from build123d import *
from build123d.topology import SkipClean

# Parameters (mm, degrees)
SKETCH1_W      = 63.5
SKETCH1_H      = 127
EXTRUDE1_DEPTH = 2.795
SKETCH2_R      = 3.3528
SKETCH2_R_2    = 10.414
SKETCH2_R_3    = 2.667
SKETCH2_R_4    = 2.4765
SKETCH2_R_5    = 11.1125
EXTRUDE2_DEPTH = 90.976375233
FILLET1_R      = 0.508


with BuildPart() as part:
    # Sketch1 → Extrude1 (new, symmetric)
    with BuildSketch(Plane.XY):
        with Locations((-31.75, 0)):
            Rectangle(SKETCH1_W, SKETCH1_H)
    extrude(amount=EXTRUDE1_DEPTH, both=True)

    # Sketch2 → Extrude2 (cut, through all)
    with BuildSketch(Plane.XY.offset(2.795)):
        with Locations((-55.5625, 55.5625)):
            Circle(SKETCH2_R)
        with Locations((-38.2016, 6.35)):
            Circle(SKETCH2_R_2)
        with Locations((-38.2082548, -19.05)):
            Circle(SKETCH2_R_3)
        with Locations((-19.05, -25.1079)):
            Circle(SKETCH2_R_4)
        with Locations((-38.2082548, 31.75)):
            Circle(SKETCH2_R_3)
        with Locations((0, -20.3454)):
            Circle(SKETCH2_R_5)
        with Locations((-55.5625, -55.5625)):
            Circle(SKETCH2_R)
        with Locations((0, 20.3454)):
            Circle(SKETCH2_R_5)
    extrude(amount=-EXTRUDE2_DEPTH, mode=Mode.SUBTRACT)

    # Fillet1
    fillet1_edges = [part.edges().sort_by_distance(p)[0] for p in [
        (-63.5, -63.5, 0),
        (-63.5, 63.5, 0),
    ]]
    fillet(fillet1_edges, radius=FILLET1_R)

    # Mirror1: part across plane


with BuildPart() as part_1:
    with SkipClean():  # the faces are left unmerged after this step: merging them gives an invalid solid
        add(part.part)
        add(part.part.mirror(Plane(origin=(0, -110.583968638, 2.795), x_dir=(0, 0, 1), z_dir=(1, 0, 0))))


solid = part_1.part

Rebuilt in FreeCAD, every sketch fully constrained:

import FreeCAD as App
import Part
import Sketcher

V = App.Vector
Q = App.Units.Quantity


def edges_at(feature, points):
    """Names of the edges that pass closest to the given points."""
    edges = feature.Shape.Edges
    near = lambda p: min(range(len(edges)), key=lambda i: edges[i].distToShape(Part.Vertex(*p))[0])
    return sorted({f"Edge{near(p) + 1}" for p in points})

doc = App.newDocument("Part")
body = doc.addObject("PartDesign::Body", "Body")

sketch1 = body.newObject("Sketcher::SketchObject", "Sketch")
sketch1.AttachmentSupport = (doc.getObject("XY_Plane"), [""])
sketch1.MapMode = "FlatFace"
sketch1.addGeometry(Part.LineSegment(V(-63.5, 63.5, 0), V(-63.5, -63.5, 0)), False)
sketch1.addGeometry(Part.LineSegment(V(-63.5, -63.5, 0), V(0, -63.5, 0)), False)
sketch1.addGeometry(Part.LineSegment(V(0, -63.5, 0), V(0, 63.5, 0)), False)
sketch1.addGeometry(Part.LineSegment(V(0, 63.5, 0), V(-63.5, 63.5, 0)), False)
sketch1.addConstraint(Sketcher.Constraint("Coincident", 0, 2, 1, 1))
sketch1.addConstraint(Sketcher.Constraint("Coincident", 1, 2, 2, 1))
sketch1.addConstraint(Sketcher.Constraint("Coincident", 2, 2, 3, 1))
sketch1.addConstraint(Sketcher.Constraint("Coincident", 3, 2, 0, 1))
sketch1.addConstraint(Sketcher.Constraint("Vertical", 0))
sketch1.addConstraint(Sketcher.Constraint("Horizontal", 1))
sketch1.addConstraint(Sketcher.Constraint("Vertical", 2))
sketch1.addConstraint(Sketcher.Constraint("Horizontal", 3))
sketch1.addConstraint(Sketcher.Constraint("Symmetric", 1, 2, 2, 2, -1, 1))
sketch1.addConstraint(Sketcher.Constraint("DistanceY", 0, 2, 0, 1, Q("5 in")))
sketch1.addConstraint(Sketcher.Constraint("DistanceX", 1, 1, 1, 2, Q("2.5 in")))
pad1 = body.newObject("PartDesign::Pad", "Pad")
pad1.Profile = sketch1
pad1.Length = 5.59
pad1.Midplane = True

sketch2 = body.newObject("Sketcher::SketchObject", "Sketch001")
sketch2.AttachmentSupport = (doc.getObject("XY_Plane"), [""])
sketch2.MapMode = "FlatFace"
sketch2.AttachmentOffset = App.Placement(V(0, 0, 2.795), App.Rotation())
sketch2.addGeometry(Part.Circle(V(-55.5625, 55.5625, 0), V(0, 0, 1), 3.3528), False)
sketch2.addGeometry(Part.Circle(V(-38.2016, 6.35, 0), V(0, 0, 1), 10.414), False)
sketch2.addGeometry(Part.Circle(V(-38.208255, -19.05, 0), V(0, 0, 1), 2.667), False)
sketch2.addGeometry(Part.Circle(V(-19.05, -25.1079, 0), V(0, 0, 1), 2.4765), False)
sketch2.addGeometry(Part.Circle(V(-38.208255, 31.75, 0), V(0, 0, 1), 2.667), False)
sketch2.addGeometry(Part.Circle(V(0, -20.3454, 0), V(0, 0, 1), 11.1125), False)
sketch2.addGeometry(Part.Circle(V(-55.5625, -55.5625, 0), V(0, 0, 1), 3.3528), False)
sketch2.addGeometry(Part.Circle(V(0, 20.3454, 0), V(0, 0, 1), 11.1125), False)
sketch2.addConstraint(Sketcher.Constraint("Equal", 2, 4))
sketch2.addConstraint(Sketcher.Constraint("Equal", 0, 6))
sketch2.addConstraint(Sketcher.Constraint("Equal", 5, 7))
sketch2.addConstraint(Sketcher.Constraint("Symmetric", 5, 3, 7, 3, -1, 1))
sketch2.addConstraint(Sketcher.Constraint("Symmetric", 0, 3, 6, 3, -1))
sketch2.addConstraint(Sketcher.Constraint("PointOnObject", 5, 3, -2))
sketch2.addConstraint(Sketcher.Constraint("Vertical", 2, 3, 4, 3))
sketch2.addConstraint(Sketcher.Constraint("Diameter", 1, Q("0.82 in")))
sketch2.addConstraint(Sketcher.Constraint("Diameter", 2, Q("0.21 in")))
sketch2.addConstraint(Sketcher.Constraint("Diameter", 0, Q("0.264 in")))
sketch2.addConstraint(Sketcher.Constraint("Diameter", 3, Q("0.195 in")))
sketch2.addConstraint(Sketcher.Constraint("Diameter", 5, Q("0.875 in")))
sketch2.addConstraint(Sketcher.Constraint("DistanceY", 2, 3, 1, 3, Q("1 in")))
sketch2.addConstraint(Sketcher.Constraint("DistanceY", 1, 3, 4, 3, Q("1 in")))
sketch2.addConstraint(Sketcher.Constraint("DistanceY", -1, 1, 1, 3, Q("0.25 in")))
sketch2.addConstraint(Sketcher.Constraint("DistanceX", 3, 3, -1, 1, Q("0.75 in")))
sketch2.addConstraint(Sketcher.Constraint("DistanceX", 0, 3, -1, 1, Q("2.1875 in")))
sketch2.addConstraint(Sketcher.Constraint("DistanceY", -1, 1, 0, 3, Q("2.1875 in")))
sketch2.addConstraint(Sketcher.Constraint("DistanceX", 1, 3, -1, 1, Q("1.504 in")))
sketch2.addConstraint(Sketcher.Constraint("DistanceY", 5, 3, -1, 1, Q("0.801 in")))
sketch2.addConstraint(Sketcher.Constraint("DistanceY", 3, 3, 0, 3, Q("3.176 in")))
sketch2.addConstraint(Sketcher.Constraint("DistanceX", 2, 3, -1, 1, Q("38.208255 mm")))
pocket1 = body.newObject("PartDesign::Pocket", "Pocket")
pocket1.Profile = sketch2
pocket1.Type = "ThroughAll"
doc.recompute()

fillet = body.newObject("PartDesign::Fillet", "Fillet")
fillet.Base = (pocket1, edges_at(pocket1, [(-63.5, -63.5, 0), (-63.5, 63.5, 0)]))
fillet.Radius = Q("0.02 in")
body2 = doc.addObject("PartDesign::Body", "Body001")
doc.recompute()

body2.BaseFeature = body
doc.recompute()

mirroring = doc.addObject("Part::Mirroring", "Mirroring")
mirroring.Source = body
mirroring.Base = V(0, -110.583969, 2.795)
mirroring.Normal = V(1, 0, 0)
body3 = doc.addObject("PartDesign::Body", "Body002")
body3.BaseFeature = mirroring
boolean = body2.newObject("PartDesign::Boolean", "Boolean")
boolean.Type = "Fuse"
boolean.addObjects([body3])
doc.recompute()
mirroring.Visibility = False

doc.recompute()
